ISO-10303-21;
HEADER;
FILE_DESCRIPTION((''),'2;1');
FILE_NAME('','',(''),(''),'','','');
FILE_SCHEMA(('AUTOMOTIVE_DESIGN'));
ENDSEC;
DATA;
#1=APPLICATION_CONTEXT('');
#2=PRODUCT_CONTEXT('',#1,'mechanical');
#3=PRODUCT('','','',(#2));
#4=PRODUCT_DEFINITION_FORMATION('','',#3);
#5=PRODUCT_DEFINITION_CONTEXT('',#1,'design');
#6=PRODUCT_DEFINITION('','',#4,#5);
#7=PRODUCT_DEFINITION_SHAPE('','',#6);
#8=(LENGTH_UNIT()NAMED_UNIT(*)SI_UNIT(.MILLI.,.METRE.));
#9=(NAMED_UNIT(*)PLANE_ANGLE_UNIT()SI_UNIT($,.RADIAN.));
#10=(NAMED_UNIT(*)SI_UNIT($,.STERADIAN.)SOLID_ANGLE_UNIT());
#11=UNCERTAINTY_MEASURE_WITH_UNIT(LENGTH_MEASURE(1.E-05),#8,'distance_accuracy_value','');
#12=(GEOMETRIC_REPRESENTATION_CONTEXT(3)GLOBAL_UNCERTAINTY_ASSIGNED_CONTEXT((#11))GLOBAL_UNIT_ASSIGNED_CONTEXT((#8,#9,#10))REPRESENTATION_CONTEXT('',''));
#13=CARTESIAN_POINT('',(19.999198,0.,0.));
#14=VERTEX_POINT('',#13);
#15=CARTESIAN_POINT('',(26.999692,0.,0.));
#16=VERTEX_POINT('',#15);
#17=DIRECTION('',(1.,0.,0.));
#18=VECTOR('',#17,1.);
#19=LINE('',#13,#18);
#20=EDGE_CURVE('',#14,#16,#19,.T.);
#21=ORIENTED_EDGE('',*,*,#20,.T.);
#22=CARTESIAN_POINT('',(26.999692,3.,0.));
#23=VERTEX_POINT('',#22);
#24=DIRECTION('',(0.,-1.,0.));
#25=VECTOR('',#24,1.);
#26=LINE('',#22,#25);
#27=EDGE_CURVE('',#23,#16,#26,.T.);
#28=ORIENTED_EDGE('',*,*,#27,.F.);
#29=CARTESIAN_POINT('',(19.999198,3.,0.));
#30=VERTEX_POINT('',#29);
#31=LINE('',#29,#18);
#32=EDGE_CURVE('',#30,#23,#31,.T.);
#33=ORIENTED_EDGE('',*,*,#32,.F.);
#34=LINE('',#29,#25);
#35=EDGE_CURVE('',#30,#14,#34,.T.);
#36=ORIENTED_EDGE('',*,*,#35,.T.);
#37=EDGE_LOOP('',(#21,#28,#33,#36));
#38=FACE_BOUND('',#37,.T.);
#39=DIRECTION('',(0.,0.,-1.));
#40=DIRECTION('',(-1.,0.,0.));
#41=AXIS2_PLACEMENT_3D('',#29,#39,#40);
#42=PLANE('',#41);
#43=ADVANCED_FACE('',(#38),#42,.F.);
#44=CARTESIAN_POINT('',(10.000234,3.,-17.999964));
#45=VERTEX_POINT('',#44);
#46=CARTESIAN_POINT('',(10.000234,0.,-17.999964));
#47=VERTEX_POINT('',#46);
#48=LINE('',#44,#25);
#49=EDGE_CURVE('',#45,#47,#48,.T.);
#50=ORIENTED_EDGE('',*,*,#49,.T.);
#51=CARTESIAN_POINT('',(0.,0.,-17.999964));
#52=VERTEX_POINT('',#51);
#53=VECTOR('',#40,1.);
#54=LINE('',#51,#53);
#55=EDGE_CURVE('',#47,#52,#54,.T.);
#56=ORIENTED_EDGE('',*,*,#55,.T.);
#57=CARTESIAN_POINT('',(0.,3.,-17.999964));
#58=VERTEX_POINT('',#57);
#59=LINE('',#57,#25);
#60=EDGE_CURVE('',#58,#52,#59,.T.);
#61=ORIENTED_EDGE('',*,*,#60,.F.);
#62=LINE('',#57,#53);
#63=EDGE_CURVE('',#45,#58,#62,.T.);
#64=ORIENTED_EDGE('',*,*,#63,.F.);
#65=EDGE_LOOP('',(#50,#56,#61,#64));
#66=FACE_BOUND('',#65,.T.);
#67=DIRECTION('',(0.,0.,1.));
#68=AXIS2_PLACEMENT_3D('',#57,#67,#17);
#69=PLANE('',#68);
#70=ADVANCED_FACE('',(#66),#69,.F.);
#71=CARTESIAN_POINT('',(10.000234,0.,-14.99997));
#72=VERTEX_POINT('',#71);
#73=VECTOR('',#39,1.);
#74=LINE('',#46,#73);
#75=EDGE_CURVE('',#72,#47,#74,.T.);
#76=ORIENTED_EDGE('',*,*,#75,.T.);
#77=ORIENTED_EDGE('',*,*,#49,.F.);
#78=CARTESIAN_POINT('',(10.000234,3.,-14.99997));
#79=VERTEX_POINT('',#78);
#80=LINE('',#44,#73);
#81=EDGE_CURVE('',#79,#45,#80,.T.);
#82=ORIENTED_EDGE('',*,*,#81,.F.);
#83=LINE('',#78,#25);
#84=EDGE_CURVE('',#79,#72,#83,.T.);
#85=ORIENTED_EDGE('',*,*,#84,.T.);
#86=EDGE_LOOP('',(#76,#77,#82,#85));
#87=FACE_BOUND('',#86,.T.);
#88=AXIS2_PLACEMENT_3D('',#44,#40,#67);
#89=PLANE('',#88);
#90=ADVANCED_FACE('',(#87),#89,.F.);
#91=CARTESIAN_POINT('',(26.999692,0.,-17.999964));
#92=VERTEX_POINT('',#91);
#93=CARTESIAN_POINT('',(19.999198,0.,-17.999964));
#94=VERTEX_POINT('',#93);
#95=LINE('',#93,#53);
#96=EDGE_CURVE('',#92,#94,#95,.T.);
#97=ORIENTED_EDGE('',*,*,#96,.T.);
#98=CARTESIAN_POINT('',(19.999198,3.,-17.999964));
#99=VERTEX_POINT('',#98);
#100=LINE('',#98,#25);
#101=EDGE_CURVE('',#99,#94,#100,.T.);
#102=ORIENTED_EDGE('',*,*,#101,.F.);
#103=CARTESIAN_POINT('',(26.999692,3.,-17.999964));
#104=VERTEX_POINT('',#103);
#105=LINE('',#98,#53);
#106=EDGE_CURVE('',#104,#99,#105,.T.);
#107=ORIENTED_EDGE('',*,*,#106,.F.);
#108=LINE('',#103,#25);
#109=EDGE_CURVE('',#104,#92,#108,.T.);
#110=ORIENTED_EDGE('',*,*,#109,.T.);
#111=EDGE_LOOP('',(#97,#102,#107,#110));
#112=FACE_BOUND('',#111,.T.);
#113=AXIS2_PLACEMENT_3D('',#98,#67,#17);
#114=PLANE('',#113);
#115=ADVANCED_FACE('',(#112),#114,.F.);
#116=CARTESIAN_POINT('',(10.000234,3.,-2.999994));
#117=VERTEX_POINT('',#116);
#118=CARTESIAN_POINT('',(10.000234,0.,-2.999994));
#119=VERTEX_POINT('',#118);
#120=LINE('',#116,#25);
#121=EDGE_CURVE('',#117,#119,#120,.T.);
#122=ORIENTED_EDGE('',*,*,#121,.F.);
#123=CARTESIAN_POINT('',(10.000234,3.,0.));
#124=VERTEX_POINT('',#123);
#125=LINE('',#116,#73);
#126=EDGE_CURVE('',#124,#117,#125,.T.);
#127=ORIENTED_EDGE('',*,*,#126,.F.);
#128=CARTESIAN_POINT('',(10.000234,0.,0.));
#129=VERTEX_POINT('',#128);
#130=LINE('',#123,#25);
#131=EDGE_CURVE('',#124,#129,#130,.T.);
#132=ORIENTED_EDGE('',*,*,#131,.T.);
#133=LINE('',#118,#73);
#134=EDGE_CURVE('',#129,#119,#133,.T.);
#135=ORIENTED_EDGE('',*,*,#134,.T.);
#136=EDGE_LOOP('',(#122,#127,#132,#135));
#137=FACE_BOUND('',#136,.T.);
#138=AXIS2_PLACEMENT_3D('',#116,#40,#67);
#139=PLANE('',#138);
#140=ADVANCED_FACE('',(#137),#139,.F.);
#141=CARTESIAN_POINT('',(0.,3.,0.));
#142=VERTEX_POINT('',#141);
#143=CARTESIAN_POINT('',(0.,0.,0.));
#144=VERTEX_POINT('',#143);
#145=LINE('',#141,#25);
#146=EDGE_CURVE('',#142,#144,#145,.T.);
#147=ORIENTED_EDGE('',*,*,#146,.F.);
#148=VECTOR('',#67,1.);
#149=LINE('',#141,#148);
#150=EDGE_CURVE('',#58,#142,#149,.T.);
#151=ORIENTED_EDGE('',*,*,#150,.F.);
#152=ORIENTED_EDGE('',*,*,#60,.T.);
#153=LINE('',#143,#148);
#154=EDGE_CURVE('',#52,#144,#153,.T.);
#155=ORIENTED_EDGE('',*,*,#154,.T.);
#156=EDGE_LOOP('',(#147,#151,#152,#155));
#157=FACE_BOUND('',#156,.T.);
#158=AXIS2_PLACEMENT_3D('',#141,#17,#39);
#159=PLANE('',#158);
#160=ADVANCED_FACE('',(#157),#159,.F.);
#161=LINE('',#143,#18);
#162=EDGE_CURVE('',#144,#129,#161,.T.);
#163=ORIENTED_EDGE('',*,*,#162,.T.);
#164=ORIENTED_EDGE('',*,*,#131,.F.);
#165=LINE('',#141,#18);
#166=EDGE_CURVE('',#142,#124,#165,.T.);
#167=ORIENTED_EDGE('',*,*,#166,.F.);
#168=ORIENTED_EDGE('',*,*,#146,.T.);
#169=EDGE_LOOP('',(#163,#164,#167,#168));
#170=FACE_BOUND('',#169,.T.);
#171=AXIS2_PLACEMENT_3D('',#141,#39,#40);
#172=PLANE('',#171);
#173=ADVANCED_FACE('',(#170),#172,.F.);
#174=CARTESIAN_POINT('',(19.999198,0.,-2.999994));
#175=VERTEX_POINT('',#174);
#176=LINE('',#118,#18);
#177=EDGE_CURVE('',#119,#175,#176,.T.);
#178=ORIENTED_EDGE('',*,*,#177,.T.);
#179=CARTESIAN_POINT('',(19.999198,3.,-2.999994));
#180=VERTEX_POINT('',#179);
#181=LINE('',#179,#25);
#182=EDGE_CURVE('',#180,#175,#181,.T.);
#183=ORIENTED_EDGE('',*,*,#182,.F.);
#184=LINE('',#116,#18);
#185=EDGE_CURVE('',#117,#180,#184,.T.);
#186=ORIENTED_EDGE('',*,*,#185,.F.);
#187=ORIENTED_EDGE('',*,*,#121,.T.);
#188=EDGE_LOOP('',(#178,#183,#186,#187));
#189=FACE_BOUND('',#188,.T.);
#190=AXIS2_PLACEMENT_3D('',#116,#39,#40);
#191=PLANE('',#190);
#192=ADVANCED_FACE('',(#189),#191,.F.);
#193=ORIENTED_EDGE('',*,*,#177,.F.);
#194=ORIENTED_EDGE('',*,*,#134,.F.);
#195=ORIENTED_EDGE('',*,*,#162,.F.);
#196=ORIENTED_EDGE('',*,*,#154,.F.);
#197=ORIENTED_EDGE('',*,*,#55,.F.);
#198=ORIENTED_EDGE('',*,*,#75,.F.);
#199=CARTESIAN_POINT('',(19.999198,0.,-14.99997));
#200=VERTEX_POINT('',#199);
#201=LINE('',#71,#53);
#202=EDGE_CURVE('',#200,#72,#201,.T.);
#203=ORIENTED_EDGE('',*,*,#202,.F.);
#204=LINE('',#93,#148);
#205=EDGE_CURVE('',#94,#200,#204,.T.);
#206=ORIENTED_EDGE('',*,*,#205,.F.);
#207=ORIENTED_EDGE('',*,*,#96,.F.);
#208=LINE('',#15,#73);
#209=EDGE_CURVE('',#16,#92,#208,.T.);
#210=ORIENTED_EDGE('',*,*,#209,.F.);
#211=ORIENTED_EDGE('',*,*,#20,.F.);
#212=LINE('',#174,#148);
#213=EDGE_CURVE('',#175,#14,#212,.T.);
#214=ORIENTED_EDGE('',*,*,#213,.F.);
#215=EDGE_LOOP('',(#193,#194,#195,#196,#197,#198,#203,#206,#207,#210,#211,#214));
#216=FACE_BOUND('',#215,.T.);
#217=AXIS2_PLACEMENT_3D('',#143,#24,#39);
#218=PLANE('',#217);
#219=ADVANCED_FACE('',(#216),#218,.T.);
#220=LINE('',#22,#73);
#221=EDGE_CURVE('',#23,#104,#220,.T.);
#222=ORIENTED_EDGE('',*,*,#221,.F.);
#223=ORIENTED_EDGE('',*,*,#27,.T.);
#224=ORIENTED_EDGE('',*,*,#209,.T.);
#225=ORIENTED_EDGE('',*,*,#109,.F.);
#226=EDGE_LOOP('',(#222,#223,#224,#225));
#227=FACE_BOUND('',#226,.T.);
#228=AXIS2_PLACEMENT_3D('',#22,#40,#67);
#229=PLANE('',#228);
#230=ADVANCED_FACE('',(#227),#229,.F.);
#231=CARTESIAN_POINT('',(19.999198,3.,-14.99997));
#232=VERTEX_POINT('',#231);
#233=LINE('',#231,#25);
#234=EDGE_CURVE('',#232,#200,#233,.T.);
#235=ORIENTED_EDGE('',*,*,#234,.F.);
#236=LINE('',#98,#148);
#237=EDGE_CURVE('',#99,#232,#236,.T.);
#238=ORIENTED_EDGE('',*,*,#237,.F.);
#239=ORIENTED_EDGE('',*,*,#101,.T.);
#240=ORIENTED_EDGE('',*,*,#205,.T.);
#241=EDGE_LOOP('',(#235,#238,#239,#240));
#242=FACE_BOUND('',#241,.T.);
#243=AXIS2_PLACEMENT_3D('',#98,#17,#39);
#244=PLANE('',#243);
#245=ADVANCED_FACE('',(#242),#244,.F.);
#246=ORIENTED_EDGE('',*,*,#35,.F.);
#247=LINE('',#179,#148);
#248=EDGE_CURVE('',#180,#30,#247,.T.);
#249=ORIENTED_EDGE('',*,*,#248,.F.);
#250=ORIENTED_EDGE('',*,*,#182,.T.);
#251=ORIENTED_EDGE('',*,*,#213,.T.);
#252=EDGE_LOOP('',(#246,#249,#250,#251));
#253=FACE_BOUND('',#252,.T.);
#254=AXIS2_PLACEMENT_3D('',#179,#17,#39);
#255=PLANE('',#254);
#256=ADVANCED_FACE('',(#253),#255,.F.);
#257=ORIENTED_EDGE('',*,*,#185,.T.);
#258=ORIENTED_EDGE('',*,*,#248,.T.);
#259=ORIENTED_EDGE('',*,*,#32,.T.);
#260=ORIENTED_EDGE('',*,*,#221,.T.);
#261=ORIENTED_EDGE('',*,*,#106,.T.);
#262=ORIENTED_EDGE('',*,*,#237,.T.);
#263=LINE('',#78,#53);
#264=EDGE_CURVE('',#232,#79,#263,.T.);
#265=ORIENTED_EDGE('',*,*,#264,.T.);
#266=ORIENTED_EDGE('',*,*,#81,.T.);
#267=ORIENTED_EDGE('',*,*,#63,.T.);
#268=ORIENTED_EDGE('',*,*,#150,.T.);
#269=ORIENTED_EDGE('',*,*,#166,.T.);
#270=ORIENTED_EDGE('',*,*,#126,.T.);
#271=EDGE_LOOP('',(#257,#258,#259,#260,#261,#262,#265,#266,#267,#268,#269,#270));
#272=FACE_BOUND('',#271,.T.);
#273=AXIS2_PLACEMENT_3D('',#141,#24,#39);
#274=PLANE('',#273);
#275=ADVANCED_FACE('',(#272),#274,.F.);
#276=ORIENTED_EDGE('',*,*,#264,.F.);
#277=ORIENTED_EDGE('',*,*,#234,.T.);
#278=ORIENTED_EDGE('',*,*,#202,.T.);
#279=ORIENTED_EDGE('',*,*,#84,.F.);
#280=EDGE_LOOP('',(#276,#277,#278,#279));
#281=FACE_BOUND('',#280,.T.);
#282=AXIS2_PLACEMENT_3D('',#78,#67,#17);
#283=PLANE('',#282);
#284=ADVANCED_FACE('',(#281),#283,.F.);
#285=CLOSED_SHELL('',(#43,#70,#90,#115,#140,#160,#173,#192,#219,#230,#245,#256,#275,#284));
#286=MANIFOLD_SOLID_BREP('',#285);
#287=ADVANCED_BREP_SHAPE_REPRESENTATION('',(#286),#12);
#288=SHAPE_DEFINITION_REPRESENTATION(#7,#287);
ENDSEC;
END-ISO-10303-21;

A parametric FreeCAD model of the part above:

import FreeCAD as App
import Part
import Sketcher
Q = App.Units.Quantity

doc = App.newDocument("Part")
body = doc.addObject("PartDesign::Body", "Body")

sketch1 = doc.addObject("Sketcher::SketchObject", "Sketch")
body.addObject(sketch1)
sketch1.AttachmentSupport = (doc.XZ_Plane, [""])
sketch1.MapMode = "FlatFace"
sketch1.addGeometry(Part.LineSegment(App.Vector(0, 0, 0), App.Vector(10.000234, 0, 0)), False)
sketch1.addGeometry(Part.LineSegment(App.Vector(10.000234, 0, 0), App.Vector(10.000234, -2.999994, 0)), False)
sketch1.addGeometry(Part.LineSegment(App.Vector(10.000234, -2.999994, 0), App.Vector(19.999198, -2.999994, 0)), False)
sketch1.addGeometry(Part.LineSegment(App.Vector(19.999198, -2.999994, 0), App.Vector(19.999198, 0, 0)), False)
sketch1.addGeometry(Part.LineSegment(App.Vector(19.999198, 0, 0), App.Vector(26.999692, 0, 0)), False)
sketch1.addGeometry(Part.LineSegment(App.Vector(26.999692, 0, 0), App.Vector(26.999692, -17.999964, 0)), False)
sketch1.addGeometry(Part.LineSegment(App.Vector(26.999692, -17.999964, 0), App.Vector(19.999198, -17.999964, 0)), False)
sketch1.addGeometry(Part.LineSegment(App.Vector(19.999198, -17.999964, 0), App.Vector(19.999198, -14.99997, 0)), False)
sketch1.addGeometry(Part.LineSegment(App.Vector(19.999198, -14.99997, 0), App.Vector(10.000234, -14.99997, 0)), False)
sketch1.addGeometry(Part.LineSegment(App.Vector(10.000234, -14.99997, 0), App.Vector(10.000234, -17.999964, 0)), False)
sketch1.addGeometry(Part.LineSegment(App.Vector(10.000234, -17.999964, 0), App.Vector(0, -17.999964, 0)), False)
sketch1.addGeometry(Part.LineSegment(App.Vector(0, -17.999964, 0), App.Vector(0, 0, 0)), False)
sketch1.addConstraint(Sketcher.Constraint("Coincident", 0, 2, 1, 1))
sketch1.addConstraint(Sketcher.Constraint("Coincident", 1, 2, 2, 1))
sketch1.addConstraint(Sketcher.Constraint("Coincident", 2, 2, 3, 1))
sketch1.addConstraint(Sketcher.Constraint("Coincident", 3, 2, 4, 1))
sketch1.addConstraint(Sketcher.Constraint("Coincident", 4, 2, 5, 1))
sketch1.addConstraint(Sketcher.Constraint("Coincident", 5, 2, 6, 1))
sketch1.addConstraint(Sketcher.Constraint("Coincident", 6, 2, 7, 1))
sketch1.addConstraint(Sketcher.Constraint("Coincident", 7, 2, 8, 1))
sketch1.addConstraint(Sketcher.Constraint("Coincident", 8, 2, 9, 1))
sketch1.addConstraint(Sketcher.Constraint("Coincident", 9, 2, 10, 1))
sketch1.addConstraint(Sketcher.Constraint("Coincident", 10, 2, 11, 1))
sketch1.addConstraint(Sketcher.Constraint("Coincident", 11, 2, 0, 1))
sketch1.addConstraint(Sketcher.Constraint("Horizontal", 0))
sketch1.addConstraint(Sketcher.Constraint("Vertical", 1))
sketch1.addConstraint(Sketcher.Constraint("Horizontal", 2))
sketch1.addConstraint(Sketcher.Constraint("Vertical", 3))
sketch1.addConstraint(Sketcher.Constraint("Horizontal", 4))
sketch1.addConstraint(Sketcher.Constraint("Vertical", 5))
sketch1.addConstraint(Sketcher.Constraint("Horizontal", 6))
sketch1.addConstraint(Sketcher.Constraint("Vertical", 7))
sketch1.addConstraint(Sketcher.Constraint("Horizontal", 8))
sketch1.addConstraint(Sketcher.Constraint("Vertical", 9))
sketch1.addConstraint(Sketcher.Constraint("Horizontal", 10))
sketch1.addConstraint(Sketcher.Constraint("Vertical", 11))
sketch1.addConstraint(Sketcher.Constraint("Coincident", 11, 2, -1, 1))
sketch1.addConstraint(Sketcher.Constraint("PointOnObject", 3, 2, -1))
sketch1.addConstraint(Sketcher.Constraint("Horizontal", 6, 2, 9, 2))
sketch1.addConstraint(Sketcher.Constraint("Vertical", 3, 2, 6, 2))
sketch1.addConstraint(Sketcher.Constraint("Vertical", 1, 2, 8, 2))
sketch1.addConstraint(Sketcher.Constraint("Equal", 3, 7))
sketch1.addConstraint(Sketcher.Constraint("DistanceX", -1, 1, 2, 2, Q("19.999198 mm")))
sketch1.addConstraint(Sketcher.Constraint("DistanceX", 0, 1, 0, 2, Q("10.000234 mm")))
sketch1.addConstraint(Sketcher.Constraint("DistanceX", 4, 1, 4, 2, Q("7.000494 mm")))
sketch1.addConstraint(Sketcher.Constraint("DistanceY", 1, 2, 1, 1, Q("2.999994 mm")))
sketch1.addConstraint(Sketcher.Constraint("DistanceY", 5, 2, 5, 1, Q("17.999964 mm")))
pad1 = doc.addObject("PartDesign::Pad", "Pad")
body.addObject(pad1)
pad1.Profile = sketch1
pad1.Length = 3
pad1.Reversed = True

doc.recompute()
